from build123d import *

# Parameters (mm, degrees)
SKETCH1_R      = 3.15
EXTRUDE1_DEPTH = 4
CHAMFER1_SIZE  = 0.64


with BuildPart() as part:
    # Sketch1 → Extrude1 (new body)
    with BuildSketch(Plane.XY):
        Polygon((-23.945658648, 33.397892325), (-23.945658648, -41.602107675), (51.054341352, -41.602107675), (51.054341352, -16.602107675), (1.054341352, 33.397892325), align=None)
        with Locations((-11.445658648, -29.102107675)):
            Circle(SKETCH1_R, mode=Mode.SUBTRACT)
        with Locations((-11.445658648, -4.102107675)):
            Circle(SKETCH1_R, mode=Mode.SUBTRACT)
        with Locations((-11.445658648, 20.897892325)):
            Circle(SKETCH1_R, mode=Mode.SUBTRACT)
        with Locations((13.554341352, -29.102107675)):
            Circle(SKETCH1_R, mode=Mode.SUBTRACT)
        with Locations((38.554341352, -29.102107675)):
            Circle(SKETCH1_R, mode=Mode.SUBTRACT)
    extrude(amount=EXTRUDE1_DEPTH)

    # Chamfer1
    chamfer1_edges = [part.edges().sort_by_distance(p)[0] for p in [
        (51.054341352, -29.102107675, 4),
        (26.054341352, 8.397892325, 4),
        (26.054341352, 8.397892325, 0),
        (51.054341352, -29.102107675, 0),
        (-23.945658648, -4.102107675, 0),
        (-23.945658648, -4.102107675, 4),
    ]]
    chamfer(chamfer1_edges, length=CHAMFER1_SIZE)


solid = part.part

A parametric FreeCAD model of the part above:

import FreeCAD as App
import Part
import Sketcher
from FreeCAD import Vector
Q = App.Units.Quantity


def edges_at(feature, points):
    """Names of the edges that pass closest to the given points."""
    edges = feature.Shape.Edges
    near = lambda p: min(range(len(edges)), key=lambda i: edges[i].distToShape(Part.Vertex(*p))[0])
    return sorted({f"Edge{near(p) + 1}" for p in points})


def add_polygon(sketch, points):
    """Adds a closed chain of lines whose ends are joined by coincident constraints."""
    first, n = sketch.GeometryCount, len(points)
    for a, b in zip(points, points[1:] + points[:1]):
        sketch.addGeometry(Part.LineSegment(App.Vector(*a, 0), App.Vector(*b, 0)), False)
    for i in range(n):
        sketch.addConstraint(Sketcher.Constraint("Coincident", first + i, 2, first + (i + 1) % n, 1))

doc = App.newDocument("Part")
body = doc.addObject("PartDesign::Body", "Body")

# Sketch on XY plane
sketch1 = body.newObject("Sketcher::SketchObject", "Sketch")
sketch1.AttachmentSupport = (doc.getObject("XY_Plane"), [""])
sketch1.MapMode = "FlatFace"
add_polygon(sketch1, [(-23.9, 33.4), (-23.9, -41.6), (51.1, -41.6), (51.1, -16.6), (1.1, 33.4)])  # lines 0-4
sketch1.addGeometry(Part.Circle(Vector(-11.4, -29.1, 0), Vector(0, 0, 1), 3.1), False)  # 5
sketch1.addGeometry(Part.Circle(Vector(-11.4, -4.1, 0), Vector(0, 0, 1), 3.1), False)  # 6
sketch1.addGeometry(Part.Circle(Vector(13.6, -29.1, 0), Vector(0, 0, 1), 3.1), False)  # 7
sketch1.addGeometry(Part.Circle(Vector(38.6, -29.1, 0), Vector(0, 0, 1), 3.1), False)  # 8
sketch1.addGeometry(Part.Circle(Vector(-11.4, 20.9, 0), Vector(0, 0, 1), 3.1), False)  # 9
sketch1.addConstraint([
    Sketcher.Constraint("Vertical", 0),
    Sketcher.Constraint("Horizontal", 1),
    Sketcher.Constraint("Vertical", 2),
    Sketcher.Constraint("Horizontal", 4),
    Sketcher.Constraint("Equal", 5, 6),
    Sketcher.Constraint("Equal", 6, 7),
    Sketcher.Constraint("Equal", 7, 8),
    Sketcher.Constraint("Equal", 8, 9),
    Sketcher.Constraint("Horizontal", 5, 3, 7, 3),
    Sketcher.Constraint("Horizontal", 7, 3, 8, 3),
    Sketcher.Constraint("Vertical", 5, 3, 6, 3),
    Sketcher.Constraint("Vertical", 6, 3, 9, 3),
    Sketcher.Constraint("Equal", 1, 0),
    Sketcher.Constraint("Equal", 4, 2),
    Sketcher.Constraint("Diameter", 5, Q("6.3 mm")),
    Sketcher.Constraint("DistanceX", 1, 1, 1, 2, Q("75 mm")),
    Sketcher.Constraint("DistanceX", 4, 2, 4, 1, Q("25 mm")),
    Sketcher.Constraint("DistanceY", 5, 3, 6, 3, Q("25 mm")),
    Sketcher.Constraint("DistanceX", 5, 3, 7, 3, Q("25 mm")),
    Sketcher.Constraint("DistanceX", 7, 3, 8, 3, Q("25 mm")),
    Sketcher.Constraint("DistanceY", 6, 3, 9, 3, Q("25 mm")),
    Sketcher.Constraint("DistanceX", 0, 2, 5, 3, Q("12.5 mm")),
    Sketcher.Constraint("DistanceY", 0, 2, 5, 3, Q("12.5 mm")),
    Sketcher.Constraint("DistanceX", 5, 3, -1, 1, Q("11.445659 mm")),
    Sketcher.Constraint("DistanceY", 5, 3, -1, 1, Q("29.102108 mm")),
])
pad1 = body.newObject("PartDesign::Pad", "Pad")
pad1.Profile = sketch1
pad1.Length = 4
doc.recompute()

chamfer = body.newObject("PartDesign::Chamfer", "Chamfer")
chamfer.Base = (pad1, edges_at(pad1, [
    (51.054, -29.102, 4),
    (26.054, 8.398, 4),
    (26.054, 8.398, 0),
    (51.054, -29.102, 0),
    (-23.946, -4.102, 0),
    (-23.946, -4.102, 4),
]))
chamfer.Size = 0.64

doc.recompute()
